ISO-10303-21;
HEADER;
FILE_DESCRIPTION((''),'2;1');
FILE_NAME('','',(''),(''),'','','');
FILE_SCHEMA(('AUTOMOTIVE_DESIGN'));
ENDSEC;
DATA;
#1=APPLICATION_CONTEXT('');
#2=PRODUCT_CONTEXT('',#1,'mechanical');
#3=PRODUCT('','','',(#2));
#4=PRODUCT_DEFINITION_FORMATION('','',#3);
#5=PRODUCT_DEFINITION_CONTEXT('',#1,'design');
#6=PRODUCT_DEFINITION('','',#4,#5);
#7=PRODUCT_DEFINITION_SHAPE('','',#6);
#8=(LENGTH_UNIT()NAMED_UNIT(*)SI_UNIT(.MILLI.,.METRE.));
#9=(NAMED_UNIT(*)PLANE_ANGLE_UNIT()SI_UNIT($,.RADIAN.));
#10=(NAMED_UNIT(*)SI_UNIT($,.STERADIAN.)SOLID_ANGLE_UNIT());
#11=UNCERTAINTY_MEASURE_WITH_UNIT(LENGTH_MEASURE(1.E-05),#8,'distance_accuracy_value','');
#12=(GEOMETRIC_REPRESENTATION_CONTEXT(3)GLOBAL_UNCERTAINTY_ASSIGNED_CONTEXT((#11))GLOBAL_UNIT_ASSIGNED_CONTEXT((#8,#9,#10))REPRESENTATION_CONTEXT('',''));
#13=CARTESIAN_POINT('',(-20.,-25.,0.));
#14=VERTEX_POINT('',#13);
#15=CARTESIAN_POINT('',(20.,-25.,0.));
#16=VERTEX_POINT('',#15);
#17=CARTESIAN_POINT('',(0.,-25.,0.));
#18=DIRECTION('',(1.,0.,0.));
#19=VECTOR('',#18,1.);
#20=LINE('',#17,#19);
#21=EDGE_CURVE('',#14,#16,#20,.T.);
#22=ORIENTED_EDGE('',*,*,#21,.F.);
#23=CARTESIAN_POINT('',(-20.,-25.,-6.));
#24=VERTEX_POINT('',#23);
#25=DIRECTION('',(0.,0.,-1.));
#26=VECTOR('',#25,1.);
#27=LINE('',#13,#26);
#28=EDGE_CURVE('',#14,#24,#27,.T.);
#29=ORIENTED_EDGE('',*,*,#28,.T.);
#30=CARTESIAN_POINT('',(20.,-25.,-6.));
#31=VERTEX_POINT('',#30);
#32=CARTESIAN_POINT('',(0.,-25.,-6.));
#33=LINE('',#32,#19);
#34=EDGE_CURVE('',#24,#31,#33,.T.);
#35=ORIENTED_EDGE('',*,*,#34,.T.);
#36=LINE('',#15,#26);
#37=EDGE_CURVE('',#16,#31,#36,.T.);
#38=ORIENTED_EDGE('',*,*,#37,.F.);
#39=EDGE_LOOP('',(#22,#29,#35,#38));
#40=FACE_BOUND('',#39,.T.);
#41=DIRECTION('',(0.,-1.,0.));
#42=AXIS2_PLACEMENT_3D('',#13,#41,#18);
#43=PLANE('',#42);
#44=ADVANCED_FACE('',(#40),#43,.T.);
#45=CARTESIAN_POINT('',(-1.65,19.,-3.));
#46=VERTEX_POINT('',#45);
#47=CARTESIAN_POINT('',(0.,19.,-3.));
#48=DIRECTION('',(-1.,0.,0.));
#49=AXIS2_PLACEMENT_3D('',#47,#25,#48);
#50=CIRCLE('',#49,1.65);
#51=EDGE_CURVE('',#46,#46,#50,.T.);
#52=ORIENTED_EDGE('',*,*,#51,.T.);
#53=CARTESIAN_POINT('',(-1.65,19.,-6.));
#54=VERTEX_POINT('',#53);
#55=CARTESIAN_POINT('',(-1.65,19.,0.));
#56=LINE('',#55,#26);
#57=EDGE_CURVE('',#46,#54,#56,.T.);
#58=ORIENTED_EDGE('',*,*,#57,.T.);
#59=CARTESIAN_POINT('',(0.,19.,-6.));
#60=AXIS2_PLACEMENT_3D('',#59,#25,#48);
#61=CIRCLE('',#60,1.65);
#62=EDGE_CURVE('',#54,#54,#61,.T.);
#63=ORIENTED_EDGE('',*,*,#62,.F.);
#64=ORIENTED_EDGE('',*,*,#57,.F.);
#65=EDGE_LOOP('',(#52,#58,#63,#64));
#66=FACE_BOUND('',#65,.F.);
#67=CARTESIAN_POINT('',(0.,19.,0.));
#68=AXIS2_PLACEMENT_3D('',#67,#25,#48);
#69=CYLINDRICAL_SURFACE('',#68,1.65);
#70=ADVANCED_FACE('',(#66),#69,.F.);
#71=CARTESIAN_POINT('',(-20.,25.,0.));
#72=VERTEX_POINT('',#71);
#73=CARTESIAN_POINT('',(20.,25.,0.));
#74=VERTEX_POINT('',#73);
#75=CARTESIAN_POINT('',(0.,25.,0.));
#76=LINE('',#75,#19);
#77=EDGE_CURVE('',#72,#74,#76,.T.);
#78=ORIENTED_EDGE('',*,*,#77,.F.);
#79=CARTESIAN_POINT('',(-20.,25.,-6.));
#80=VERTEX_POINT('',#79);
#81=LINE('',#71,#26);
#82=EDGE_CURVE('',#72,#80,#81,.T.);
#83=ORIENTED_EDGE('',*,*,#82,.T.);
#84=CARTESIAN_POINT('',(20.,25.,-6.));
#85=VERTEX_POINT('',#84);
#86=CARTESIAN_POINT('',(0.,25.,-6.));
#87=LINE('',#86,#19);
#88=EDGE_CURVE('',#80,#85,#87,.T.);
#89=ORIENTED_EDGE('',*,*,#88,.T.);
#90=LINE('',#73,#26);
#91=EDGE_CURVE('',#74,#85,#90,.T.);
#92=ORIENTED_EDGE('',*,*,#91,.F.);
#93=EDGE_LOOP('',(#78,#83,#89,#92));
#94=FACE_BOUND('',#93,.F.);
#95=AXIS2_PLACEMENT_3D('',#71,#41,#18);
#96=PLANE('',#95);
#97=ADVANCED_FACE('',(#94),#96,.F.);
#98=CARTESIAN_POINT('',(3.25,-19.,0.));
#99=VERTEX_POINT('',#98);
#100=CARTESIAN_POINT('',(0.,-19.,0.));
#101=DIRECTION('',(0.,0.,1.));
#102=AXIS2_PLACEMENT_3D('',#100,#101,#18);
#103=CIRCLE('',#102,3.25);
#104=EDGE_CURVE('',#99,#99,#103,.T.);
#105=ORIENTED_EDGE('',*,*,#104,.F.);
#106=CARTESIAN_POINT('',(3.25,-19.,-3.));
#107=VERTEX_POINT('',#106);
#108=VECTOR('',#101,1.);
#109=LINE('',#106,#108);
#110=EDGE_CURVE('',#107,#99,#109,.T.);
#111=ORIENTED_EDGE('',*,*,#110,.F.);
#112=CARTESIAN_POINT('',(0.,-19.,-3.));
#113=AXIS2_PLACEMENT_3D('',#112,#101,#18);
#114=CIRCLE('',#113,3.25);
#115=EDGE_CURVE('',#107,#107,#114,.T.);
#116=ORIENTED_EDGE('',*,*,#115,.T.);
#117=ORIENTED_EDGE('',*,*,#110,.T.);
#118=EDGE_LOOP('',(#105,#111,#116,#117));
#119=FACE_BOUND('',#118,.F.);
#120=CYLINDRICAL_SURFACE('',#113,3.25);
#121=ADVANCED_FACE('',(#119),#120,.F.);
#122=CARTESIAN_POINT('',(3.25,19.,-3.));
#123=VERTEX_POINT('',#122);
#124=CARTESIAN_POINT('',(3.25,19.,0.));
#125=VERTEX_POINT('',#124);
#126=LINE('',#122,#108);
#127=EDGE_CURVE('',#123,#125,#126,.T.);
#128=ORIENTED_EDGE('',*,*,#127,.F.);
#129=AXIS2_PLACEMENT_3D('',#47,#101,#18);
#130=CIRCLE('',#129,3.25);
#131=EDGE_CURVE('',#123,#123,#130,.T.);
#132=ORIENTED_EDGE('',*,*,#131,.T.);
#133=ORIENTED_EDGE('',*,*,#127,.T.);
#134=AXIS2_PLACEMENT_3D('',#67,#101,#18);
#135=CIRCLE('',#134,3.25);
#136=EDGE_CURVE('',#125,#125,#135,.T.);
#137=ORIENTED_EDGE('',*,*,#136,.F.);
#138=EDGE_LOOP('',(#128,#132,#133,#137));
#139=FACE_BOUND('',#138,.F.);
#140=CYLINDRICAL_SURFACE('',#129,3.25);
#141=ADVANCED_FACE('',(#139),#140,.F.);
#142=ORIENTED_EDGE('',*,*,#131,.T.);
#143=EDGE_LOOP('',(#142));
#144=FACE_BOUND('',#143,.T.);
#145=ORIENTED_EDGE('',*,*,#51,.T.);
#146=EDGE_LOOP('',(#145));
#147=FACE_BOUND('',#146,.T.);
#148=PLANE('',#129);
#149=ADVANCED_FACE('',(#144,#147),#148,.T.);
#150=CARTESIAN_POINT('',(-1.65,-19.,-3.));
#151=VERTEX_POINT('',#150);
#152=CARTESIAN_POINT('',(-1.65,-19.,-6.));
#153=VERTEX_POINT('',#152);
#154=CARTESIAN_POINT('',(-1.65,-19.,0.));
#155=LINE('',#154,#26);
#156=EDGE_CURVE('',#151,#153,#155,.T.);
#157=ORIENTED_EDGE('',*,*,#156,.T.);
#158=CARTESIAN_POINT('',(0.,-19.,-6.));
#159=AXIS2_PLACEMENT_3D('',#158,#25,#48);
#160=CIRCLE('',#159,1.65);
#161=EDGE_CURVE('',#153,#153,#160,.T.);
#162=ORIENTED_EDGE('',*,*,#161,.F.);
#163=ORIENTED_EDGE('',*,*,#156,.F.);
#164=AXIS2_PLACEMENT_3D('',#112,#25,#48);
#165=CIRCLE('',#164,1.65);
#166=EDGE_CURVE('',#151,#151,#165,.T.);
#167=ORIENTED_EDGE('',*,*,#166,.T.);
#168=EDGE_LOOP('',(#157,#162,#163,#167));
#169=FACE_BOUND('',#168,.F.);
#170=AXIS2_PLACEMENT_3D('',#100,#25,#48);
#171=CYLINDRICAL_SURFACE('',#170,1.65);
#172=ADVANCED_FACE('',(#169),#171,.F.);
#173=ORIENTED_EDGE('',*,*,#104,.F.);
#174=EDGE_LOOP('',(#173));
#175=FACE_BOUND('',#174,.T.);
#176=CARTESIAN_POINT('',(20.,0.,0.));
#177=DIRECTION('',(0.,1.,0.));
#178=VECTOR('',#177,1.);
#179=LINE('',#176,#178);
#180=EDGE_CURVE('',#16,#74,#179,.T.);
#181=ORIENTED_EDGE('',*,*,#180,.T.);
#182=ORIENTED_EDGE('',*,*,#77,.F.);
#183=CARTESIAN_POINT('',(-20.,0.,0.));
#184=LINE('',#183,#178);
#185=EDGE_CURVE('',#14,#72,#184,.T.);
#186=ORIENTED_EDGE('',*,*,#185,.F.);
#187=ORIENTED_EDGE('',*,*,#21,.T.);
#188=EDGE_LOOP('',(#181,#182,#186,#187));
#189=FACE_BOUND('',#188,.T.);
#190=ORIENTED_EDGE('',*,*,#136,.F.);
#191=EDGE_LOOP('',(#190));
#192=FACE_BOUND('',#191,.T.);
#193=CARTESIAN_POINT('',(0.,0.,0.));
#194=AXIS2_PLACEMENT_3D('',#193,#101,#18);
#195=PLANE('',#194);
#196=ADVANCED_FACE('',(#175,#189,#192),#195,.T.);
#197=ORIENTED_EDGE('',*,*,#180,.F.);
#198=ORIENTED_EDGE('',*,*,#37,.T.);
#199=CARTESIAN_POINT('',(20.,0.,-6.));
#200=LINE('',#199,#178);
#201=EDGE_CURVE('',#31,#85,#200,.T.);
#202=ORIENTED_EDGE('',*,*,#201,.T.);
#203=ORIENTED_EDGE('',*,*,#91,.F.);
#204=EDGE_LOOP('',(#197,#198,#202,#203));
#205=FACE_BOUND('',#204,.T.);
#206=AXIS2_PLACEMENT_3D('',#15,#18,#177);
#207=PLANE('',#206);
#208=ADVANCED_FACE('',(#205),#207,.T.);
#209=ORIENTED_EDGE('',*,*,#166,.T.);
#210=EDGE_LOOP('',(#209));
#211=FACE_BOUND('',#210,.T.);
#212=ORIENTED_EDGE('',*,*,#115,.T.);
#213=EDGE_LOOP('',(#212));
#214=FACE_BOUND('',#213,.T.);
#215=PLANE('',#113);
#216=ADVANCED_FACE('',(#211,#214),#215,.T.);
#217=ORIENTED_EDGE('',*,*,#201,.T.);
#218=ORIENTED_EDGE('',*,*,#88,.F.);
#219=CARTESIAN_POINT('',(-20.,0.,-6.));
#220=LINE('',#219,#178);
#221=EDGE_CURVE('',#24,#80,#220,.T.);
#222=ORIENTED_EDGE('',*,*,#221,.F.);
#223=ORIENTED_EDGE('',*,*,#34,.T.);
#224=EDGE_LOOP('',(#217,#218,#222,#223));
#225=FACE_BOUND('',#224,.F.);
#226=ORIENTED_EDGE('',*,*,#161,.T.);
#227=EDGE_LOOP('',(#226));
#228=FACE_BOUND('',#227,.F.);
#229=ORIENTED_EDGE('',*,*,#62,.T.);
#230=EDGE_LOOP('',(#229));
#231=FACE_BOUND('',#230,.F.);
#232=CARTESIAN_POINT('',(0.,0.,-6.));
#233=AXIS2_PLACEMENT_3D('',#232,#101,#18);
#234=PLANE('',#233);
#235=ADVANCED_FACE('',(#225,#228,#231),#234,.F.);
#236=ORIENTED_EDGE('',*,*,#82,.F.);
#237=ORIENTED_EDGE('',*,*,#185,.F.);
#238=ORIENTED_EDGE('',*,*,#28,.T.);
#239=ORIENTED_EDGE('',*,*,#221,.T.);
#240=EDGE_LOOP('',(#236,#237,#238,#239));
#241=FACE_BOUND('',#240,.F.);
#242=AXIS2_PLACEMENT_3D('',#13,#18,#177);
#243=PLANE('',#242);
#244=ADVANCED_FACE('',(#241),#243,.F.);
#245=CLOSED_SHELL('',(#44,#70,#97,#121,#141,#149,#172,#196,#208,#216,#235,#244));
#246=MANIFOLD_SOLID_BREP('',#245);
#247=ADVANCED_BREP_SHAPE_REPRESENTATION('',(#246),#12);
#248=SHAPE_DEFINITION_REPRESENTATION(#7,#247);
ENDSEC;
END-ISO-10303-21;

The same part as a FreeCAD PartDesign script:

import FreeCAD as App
import Part
import Sketcher

V = App.Vector

doc = App.newDocument("Part")
params = doc.addObject("Spreadsheet::Sheet", "Params")
for row, (alias, value) in enumerate([
    ("sketch1_width", "40 mm"),
    ("sketch1_height", "50 mm"),
    ("pad1_length", "6 mm"),
    ("sketch2_diameter", "3.3 mm"),
    ("hole_diameter", "3.3 mm"),
    ("hole_cbore_diameter", "6.5 mm"),
    ("hole_cbore_depth", "3 mm"),
], start=1):
    params.set(f"A{row}", alias)
    params.set(f"B{row}", "=" + value)
    params.setAlias(f"B{row}", alias)

body = doc.addObject("PartDesign::Body", "Body")

# Sketch on XY plane
sketch1 = body.newObject("Sketcher::SketchObject", "Sketch")
sketch1.AttachmentSupport = (doc.getObject("XY_Plane"), [""])
sketch1.MapMode = "FlatFace"
sketch1.addGeometry(Part.LineSegment(V(-20, 25, 0), V(-20, -25, 0)), False)
sketch1.addGeometry(Part.LineSegment(V(-20, -25, 0), V(20, -25, 0)), False)
sketch1.addGeometry(Part.LineSegment(V(20, -25, 0), V(20, 25, 0)), False)
sketch1.addGeometry(Part.LineSegment(V(20, 25, 0), V(-20, 25, 0)), False)
sketch1.addConstraint(Sketcher.Constraint("Coincident", 0, 2, 1, 1))
sketch1.addConstraint(Sketcher.Constraint("Coincident", 1, 2, 2, 1))
sketch1.addConstraint(Sketcher.Constraint("Coincident", 2, 2, 3, 1))
sketch1.addConstraint(Sketcher.Constraint("Coincident", 3, 2, 0, 1))
sketch1.addConstraint(Sketcher.Constraint("Vertical", 0))
sketch1.addConstraint(Sketcher.Constraint("Horizontal", 1))
sketch1.addConstraint(Sketcher.Constraint("Vertical", 2))
sketch1.addConstraint(Sketcher.Constraint("Horizontal", 3))
sketch1.addConstraint(Sketcher.Constraint("Symmetric", 0, 2, 2, 2, -1, 1))
sketch1.addConstraint(Sketcher.Constraint("DistanceX", 1, 1, 1, 2, 40.0))
sketch1.addConstraint(Sketcher.Constraint("DistanceY", 0, 2, 0, 1, 50.0))
sketch1.setExpression("Constraints[9]", "Params.sketch1_width")
sketch1.setExpression("Constraints[10]", "Params.sketch1_height")
pad1 = body.newObject("PartDesign::Pad", "Pad")
pad1.Profile = sketch1
pad1.setExpression("Length", "Params.pad1_length")
pad1.Reversed = True

# Sketch on XY plane
sketch2 = body.newObject("Sketcher::SketchObject", "Sketch001")
sketch2.AttachmentSupport = (doc.getObject("XY_Plane"), [""])
sketch2.MapMode = "FlatFace"
sketch2.addGeometry(Part.Circle(V(0, -19, 0), V(0, 0, 1), 1.6), False)
sketch2.addGeometry(Part.Circle(V(0, 19, 0), V(0, 0, 1), 1.6), False)
sketch2.addConstraint(Sketcher.Constraint("Equal", 0, 1))
sketch2.addConstraint(Sketcher.Constraint("Symmetric", 0, 3, 1, 3, -1, 1))
sketch2.addConstraint(Sketcher.Constraint("PointOnObject", 0, 3, -2))
sketch2.addConstraint(Sketcher.Constraint("Diameter", 0, 3.3))
sketch2.addConstraint(Sketcher.Constraint("DistanceY", 0, 3, -1, 1, 19.0))
sketch2.setExpression("Constraints[3]", "Params.sketch2_diameter")
doc.recompute()
hole = body.newObject("PartDesign::Hole", "Hole")
hole.Profile = sketch2
hole.ThreadType = "None"
hole.setExpression("Diameter", "Params.hole_diameter")
hole.DepthType = "ThroughAll"
hole.HoleCutType = "Counterbore"
hole.setExpression("HoleCutDiameter", "Params.hole_cbore_diameter")
hole.setExpression("HoleCutDepth", "Params.hole_cbore_depth")

doc.recompute()
